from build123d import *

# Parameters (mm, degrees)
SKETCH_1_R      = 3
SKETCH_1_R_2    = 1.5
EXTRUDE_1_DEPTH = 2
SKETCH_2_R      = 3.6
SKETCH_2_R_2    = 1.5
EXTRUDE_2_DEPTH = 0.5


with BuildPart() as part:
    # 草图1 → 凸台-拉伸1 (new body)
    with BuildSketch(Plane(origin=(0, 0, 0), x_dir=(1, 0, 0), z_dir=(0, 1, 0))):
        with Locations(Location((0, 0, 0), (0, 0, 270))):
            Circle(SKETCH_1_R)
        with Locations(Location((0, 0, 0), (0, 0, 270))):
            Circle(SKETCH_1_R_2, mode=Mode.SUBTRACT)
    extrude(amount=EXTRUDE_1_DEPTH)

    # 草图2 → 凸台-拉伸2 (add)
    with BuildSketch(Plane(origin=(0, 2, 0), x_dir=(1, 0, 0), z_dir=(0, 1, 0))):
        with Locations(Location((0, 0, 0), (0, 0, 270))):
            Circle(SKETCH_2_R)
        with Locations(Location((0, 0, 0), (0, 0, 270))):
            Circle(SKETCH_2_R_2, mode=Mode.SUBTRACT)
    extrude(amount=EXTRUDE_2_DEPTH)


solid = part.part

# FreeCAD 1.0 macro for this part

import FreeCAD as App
import Part
import Sketcher
from FreeCAD import Vector

doc = App.newDocument("Part")
body = doc.addObject("PartDesign::Body", "Body")

# Sketch on XZ plane
sketch1 = body.newObject("Sketcher::SketchObject", "Sketch")
sketch1.AttachmentSupport = (doc.getObject("XZ_Plane"), [""])
sketch1.MapMode = "FlatFace"
sketch1.addGeometry([
    Part.Circle(Vector(0, 0, 0), Vector(0, 0, 1), 3),
    Part.Circle(Vector(0, 0, 0), Vector(0, 0, 1), 1.5),
], False)
sketch1.addConstraint([
    Sketcher.Constraint("Coincident", 0, 3, -1, 1),
    Sketcher.Constraint("Coincident", 1, 3, -1, 1),
    Sketcher.Constraint("Diameter", 0, 6.0),
    Sketcher.Constraint("Diameter", 1, 3.0),
])
pad1 = body.newObject("PartDesign::Pad", "Pad")
pad1.Profile = sketch1
pad1.Length = 2
pad1.Reversed = True

# Sketch on XZ plane
sketch2 = body.newObject("Sketcher::SketchObject", "Sketch001")
sketch2.AttachmentSupport = (doc.getObject("XZ_Plane"), [""])
sketch2.MapMode = "FlatFace"
sketch2.AttachmentOffset = App.Placement(Vector(0, 0, -2), App.Rotation())
sketch2.addGeometry([
    Part.Circle(Vector(0, 0, 0), Vector(0, 0, 1), 3.6),
    Part.Circle(Vector(0, 0, 0), Vector(0, 0, 1), 1.5),
], False)
sketch2.addConstraint([
    Sketcher.Constraint("Coincident", 0, 3, -1, 1),
    Sketcher.Constraint("Coincident", 1, 3, -1, 1),
    Sketcher.Constraint("Diameter", 1, 3.0),
    Sketcher.Constraint("Diameter", 0, 7.2),
])
pad2 = body.newObject("PartDesign::Pad", "Pad001")
pad2.Profile = sketch2
pad2.Length = 0.5
pad2.Reversed = True

doc.recompute()
